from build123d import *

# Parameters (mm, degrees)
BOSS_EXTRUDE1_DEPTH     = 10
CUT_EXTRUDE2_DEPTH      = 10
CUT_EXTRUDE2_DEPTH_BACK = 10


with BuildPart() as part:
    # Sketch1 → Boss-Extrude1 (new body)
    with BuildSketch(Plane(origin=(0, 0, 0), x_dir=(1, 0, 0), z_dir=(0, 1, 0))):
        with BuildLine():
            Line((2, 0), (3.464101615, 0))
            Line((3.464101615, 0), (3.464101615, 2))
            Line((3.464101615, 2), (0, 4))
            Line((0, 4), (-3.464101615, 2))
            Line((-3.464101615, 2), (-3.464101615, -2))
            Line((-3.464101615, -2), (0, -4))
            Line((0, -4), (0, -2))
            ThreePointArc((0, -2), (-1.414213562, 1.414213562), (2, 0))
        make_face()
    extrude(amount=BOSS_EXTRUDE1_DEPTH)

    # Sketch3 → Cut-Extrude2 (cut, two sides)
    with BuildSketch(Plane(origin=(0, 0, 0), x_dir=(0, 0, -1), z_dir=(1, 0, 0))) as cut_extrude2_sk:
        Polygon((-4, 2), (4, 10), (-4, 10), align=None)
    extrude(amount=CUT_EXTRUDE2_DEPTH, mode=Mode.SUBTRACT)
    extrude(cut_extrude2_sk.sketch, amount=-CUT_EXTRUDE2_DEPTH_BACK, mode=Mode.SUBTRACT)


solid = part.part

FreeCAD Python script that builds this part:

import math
import FreeCAD as App
import Part
import Sketcher
from FreeCAD import Vector
Q = App.Units.Quantity


def add_polygon(sketch, points):
    """Adds a closed chain of lines whose ends are joined by coincident constraints."""
    first, n = sketch.GeometryCount, len(points)
    for a, b in zip(points, points[1:] + points[:1]):
        sketch.addGeometry(Part.LineSegment(App.Vector(*a, 0), App.Vector(*b, 0)), False)
    for i in range(n):
        sketch.addConstraint(Sketcher.Constraint("Coincident", first + i, 2, first + (i + 1) % n, 1))

doc = App.newDocument("Part")
body = doc.addObject("PartDesign::Body", "Body")

sketch1 = body.newObject("Sketcher::SketchObject", "Sketch")
sketch1.AttachmentSupport = (doc.getObject("XZ_Plane"), [""])
sketch1.MapMode = "FlatFace"
sketch1.addGeometry(Part.LineSegment(Vector(2, 0, 0), Vector(3.5, 0, 0)), False)
sketch1.addGeometry(Part.LineSegment(Vector(3.5, 0, 0), Vector(3.5, -2, 0)), False)
sketch1.addGeometry(Part.LineSegment(Vector(3.5, -2, 0), Vector(0, -4, 0)), False)
sketch1.addGeometry(Part.LineSegment(Vector(0, -4, 0), Vector(-3.5, -2, 0)), False)
sketch1.addGeometry(Part.LineSegment(Vector(-3.5, -2, 0), Vector(-3.5, 2, 0)), False)
sketch1.addGeometry(Part.LineSegment(Vector(-3.5, 2, 0), Vector(0, 4, 0)), False)
sketch1.addGeometry(Part.LineSegment(Vector(0, 4, 0), Vector(0, 2, 0)), False)
sketch1.addGeometry(Part.ArcOfCircle(Part.Circle(Vector(0, 0, 0), Vector(0, 0, 1), 2), math.radians(90), math.radians(360)), False)
sketch1.addConstraint(Sketcher.Constraint("Coincident", 0, 2, 1, 1))
sketch1.addConstraint(Sketcher.Constraint("Coincident", 1, 2, 2, 1))
sketch1.addConstraint(Sketcher.Constraint("Coincident", 2, 2, 3, 1))
sketch1.addConstraint(Sketcher.Constraint("Coincident", 3, 2, 4, 1))
sketch1.addConstraint(Sketcher.Constraint("Coincident", 4, 2, 5, 1))
sketch1.addConstraint(Sketcher.Constraint("Coincident", 5, 2, 6, 1))
sketch1.addConstraint(Sketcher.Constraint("Coincident", 6, 2, 7, 1))
sketch1.addConstraint(Sketcher.Constraint("Coincident", 7, 2, 0, 1))
sketch1.addConstraint(Sketcher.Constraint("Horizontal", 0))
sketch1.addConstraint(Sketcher.Constraint("Vertical", 1))
sketch1.addConstraint(Sketcher.Constraint("Vertical", 4))
sketch1.addConstraint(Sketcher.Constraint("Vertical", 6))
sketch1.addConstraint(Sketcher.Constraint("Coincident", 7, 3, -1, 1))
sketch1.addConstraint(Sketcher.Constraint("Symmetric", 1, 2, 4, 2, -1, 1))
sketch1.addConstraint(Sketcher.Constraint("Symmetric", 2, 2, 5, 2, -1, 1))
sketch1.addConstraint(Sketcher.Constraint("PointOnObject", 0, 2, -1))
sketch1.addConstraint(Sketcher.Constraint("PointOnObject", 2, 2, -2))
sketch1.addConstraint(Sketcher.Constraint("Horizontal", 1, 2, 3, 2))
sketch1.addConstraint(Sketcher.Constraint("Horizontal", 4, 2, 6, 2))
sketch1.addConstraint(Sketcher.Constraint("Equal", 1, 6))
sketch1.addConstraint(Sketcher.Constraint("Radius", 7, 2.0))
sketch1.addConstraint(Sketcher.Constraint("Angle", 2, Q("-150 deg")))
pad1 = body.newObject("PartDesign::Pad", "Pad")
pad1.Profile = sketch1
pad1.Length = 10
pad1.Reversed = True

sketch2 = body.newObject("Sketcher::SketchObject", "Sketch001")
sketch2.AttachmentSupport = (doc.getObject("YZ_Plane"), [""])
sketch2.MapMode = "FlatFace"
add_polygon(sketch2, [(2, 4), (10, -4), (10, 4)])
sketch2.addConstraint(Sketcher.Constraint("Vertical", 1))
sketch2.addConstraint(Sketcher.Constraint("Horizontal", 2))
sketch2.addConstraint(Sketcher.Constraint("Equal", 2, 1))
sketch2.addConstraint(Sketcher.Constraint("DistanceX", 2, 2, 2, 1, 8.0))
sketch2.addConstraint(Sketcher.Constraint("DistanceX", -1, 1, 0, 2, 10.0))
sketch2.addConstraint(Sketcher.Constraint("DistanceY", 0, 2, -1, 1, 4.0))
pocket1 = body.newObject("PartDesign::Pocket", "Pocket")
pocket1.Profile = sketch2
pocket1.Type = "ThroughAll"
pocket1.Midplane = True

doc.recompute()
